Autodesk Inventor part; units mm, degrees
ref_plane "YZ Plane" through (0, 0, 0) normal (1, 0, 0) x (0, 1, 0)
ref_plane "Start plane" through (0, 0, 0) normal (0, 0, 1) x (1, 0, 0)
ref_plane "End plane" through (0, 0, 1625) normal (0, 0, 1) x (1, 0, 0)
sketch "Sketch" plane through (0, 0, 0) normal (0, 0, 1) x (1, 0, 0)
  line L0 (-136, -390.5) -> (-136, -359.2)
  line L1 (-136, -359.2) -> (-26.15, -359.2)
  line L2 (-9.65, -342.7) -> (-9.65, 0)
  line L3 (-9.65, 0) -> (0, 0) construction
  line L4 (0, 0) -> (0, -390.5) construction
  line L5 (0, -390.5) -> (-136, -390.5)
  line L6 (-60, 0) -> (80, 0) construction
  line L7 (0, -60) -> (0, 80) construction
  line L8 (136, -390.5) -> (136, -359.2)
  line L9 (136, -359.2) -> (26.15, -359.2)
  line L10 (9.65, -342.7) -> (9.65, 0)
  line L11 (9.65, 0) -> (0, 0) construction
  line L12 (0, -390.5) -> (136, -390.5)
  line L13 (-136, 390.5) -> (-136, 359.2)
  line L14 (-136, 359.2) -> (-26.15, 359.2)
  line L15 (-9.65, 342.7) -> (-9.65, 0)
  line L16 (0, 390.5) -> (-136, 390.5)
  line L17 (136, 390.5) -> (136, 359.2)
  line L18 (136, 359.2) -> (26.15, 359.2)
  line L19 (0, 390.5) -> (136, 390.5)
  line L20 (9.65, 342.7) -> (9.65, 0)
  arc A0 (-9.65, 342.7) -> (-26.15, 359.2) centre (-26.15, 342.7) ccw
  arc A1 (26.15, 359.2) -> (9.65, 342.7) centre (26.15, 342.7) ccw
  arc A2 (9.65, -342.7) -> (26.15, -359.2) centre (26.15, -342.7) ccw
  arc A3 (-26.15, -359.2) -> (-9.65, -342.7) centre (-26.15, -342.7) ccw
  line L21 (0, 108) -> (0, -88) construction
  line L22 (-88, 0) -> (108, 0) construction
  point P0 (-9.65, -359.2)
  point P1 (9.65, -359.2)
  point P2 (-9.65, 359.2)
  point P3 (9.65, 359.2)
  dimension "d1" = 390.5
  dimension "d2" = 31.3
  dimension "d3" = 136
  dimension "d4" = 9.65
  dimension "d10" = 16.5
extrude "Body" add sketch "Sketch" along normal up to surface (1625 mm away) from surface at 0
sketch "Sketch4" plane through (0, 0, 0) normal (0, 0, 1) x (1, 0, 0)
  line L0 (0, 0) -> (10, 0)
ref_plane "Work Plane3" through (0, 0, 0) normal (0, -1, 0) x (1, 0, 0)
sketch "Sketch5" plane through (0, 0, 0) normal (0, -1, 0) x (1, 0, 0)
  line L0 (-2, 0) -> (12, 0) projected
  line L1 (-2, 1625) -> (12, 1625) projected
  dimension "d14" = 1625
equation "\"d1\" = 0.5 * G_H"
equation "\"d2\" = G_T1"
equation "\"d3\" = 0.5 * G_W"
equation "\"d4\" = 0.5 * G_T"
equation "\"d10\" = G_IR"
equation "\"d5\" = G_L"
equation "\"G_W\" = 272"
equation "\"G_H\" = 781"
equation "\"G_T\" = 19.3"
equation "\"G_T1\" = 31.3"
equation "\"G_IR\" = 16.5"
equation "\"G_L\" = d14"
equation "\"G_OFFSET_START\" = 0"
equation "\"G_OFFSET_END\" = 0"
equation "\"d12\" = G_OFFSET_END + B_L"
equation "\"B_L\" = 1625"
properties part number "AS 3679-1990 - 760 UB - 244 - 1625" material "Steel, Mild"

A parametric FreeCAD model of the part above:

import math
import FreeCAD as App
import Part
import Sketcher
from FreeCAD import Vector

doc = App.newDocument("Part")
body = doc.addObject("PartDesign::Body", "Body")

sketch1 = doc.addObject("Sketcher::SketchObject", "Sketch")
body.addObject(sketch1)
sketch1.AttachmentSupport = (doc.XY_Plane, [""])
sketch1.MapMode = "FlatFace"
sketch1.addGeometry(Part.LineSegment(Vector(-136, -359, 0), Vector(-136, -390, 0)), False)
sketch1.addGeometry(Part.LineSegment(Vector(-136, -390, 0), Vector(136, -390, 0)), False)
sketch1.addGeometry(Part.LineSegment(Vector(136, -390, 0), Vector(136, -359, 0)), False)
sketch1.addGeometry(Part.LineSegment(Vector(136, -359, 0), Vector(26, -359, 0)), False)
sketch1.addGeometry(Part.ArcOfCircle(Part.Circle(Vector(26, -343, 0), Vector(0, 0, 1), 16), math.radians(180), math.radians(270)), False)
sketch1.addGeometry(Part.LineSegment(Vector(10, -343, 0), Vector(10, 343, 0)), False)
sketch1.addGeometry(Part.ArcOfCircle(Part.Circle(Vector(26, 343, 0), Vector(0, 0, 1), 16), math.radians(90), math.radians(180)), False)
sketch1.addGeometry(Part.LineSegment(Vector(26, 359, 0), Vector(136, 359, 0)), False)
sketch1.addGeometry(Part.LineSegment(Vector(136, 359, 0), Vector(136, 390, 0)), False)
sketch1.addGeometry(Part.LineSegment(Vector(136, 390, 0), Vector(-136, 390, 0)), False)
sketch1.addGeometry(Part.LineSegment(Vector(-136, 390, 0), Vector(-136, 359, 0)), False)
sketch1.addGeometry(Part.LineSegment(Vector(-136, 359, 0), Vector(-26, 359, 0)), False)
sketch1.addGeometry(Part.ArcOfCircle(Part.Circle(Vector(-26, 343, 0), Vector(0, 0, 1), 16), math.radians(0), math.radians(90)), False)
sketch1.addGeometry(Part.LineSegment(Vector(-10, 343, 0), Vector(-10, -343, 0)), False)
sketch1.addGeometry(Part.ArcOfCircle(Part.Circle(Vector(-26, -343, 0), Vector(0, 0, 1), 16), math.radians(-90), math.radians(0)), False)
sketch1.addGeometry(Part.LineSegment(Vector(-26, -359, 0), Vector(-136, -359, 0)), False)
sketch1.addConstraint(Sketcher.Constraint("Coincident", 0, 2, 1, 1))
sketch1.addConstraint(Sketcher.Constraint("Coincident", 1, 2, 2, 1))
sketch1.addConstraint(Sketcher.Constraint("Coincident", 2, 2, 3, 1))
sketch1.addConstraint(Sketcher.Constraint("Tangent", 3, 2, 4, 2))
sketch1.addConstraint(Sketcher.Constraint("Tangent", 4, 1, 5, 1))
sketch1.addConstraint(Sketcher.Constraint("Tangent", 5, 2, 6, 2))
sketch1.addConstraint(Sketcher.Constraint("Tangent", 6, 1, 7, 1))
sketch1.addConstraint(Sketcher.Constraint("Coincident", 7, 2, 8, 1))
sketch1.addConstraint(Sketcher.Constraint("Coincident", 8, 2, 9, 1))
sketch1.addConstraint(Sketcher.Constraint("Coincident", 9, 2, 10, 1))
sketch1.addConstraint(Sketcher.Constraint("Coincident", 10, 2, 11, 1))
sketch1.addConstraint(Sketcher.Constraint("Tangent", 11, 2, 12, 2))
sketch1.addConstraint(Sketcher.Constraint("Tangent", 12, 1, 13, 1))
sketch1.addConstraint(Sketcher.Constraint("Tangent", 13, 2, 14, 2))
sketch1.addConstraint(Sketcher.Constraint("Tangent", 14, 1, 15, 1))
sketch1.addConstraint(Sketcher.Constraint("Coincident", 15, 2, 0, 1))
sketch1.addConstraint(Sketcher.Constraint("Vertical", 0))
sketch1.addConstraint(Sketcher.Constraint("Horizontal", 1))
sketch1.addConstraint(Sketcher.Constraint("Vertical", 2))
sketch1.addConstraint(Sketcher.Constraint("Horizontal", 3))
sketch1.addConstraint(Sketcher.Constraint("Vertical", 5))
sketch1.addConstraint(Sketcher.Constraint("Horizontal", 7))
sketch1.addConstraint(Sketcher.Constraint("Vertical", 8))
sketch1.addConstraint(Sketcher.Constraint("Horizontal", 9))
sketch1.addConstraint(Sketcher.Constraint("Vertical", 10))
sketch1.addConstraint(Sketcher.Constraint("Horizontal", 11))
sketch1.addConstraint(Sketcher.Constraint("Vertical", 13))
sketch1.addConstraint(Sketcher.Constraint("Horizontal", 15))
sketch1.addConstraint(Sketcher.Constraint("Equal", 4, 6))
sketch1.addConstraint(Sketcher.Constraint("Equal", 6, 12))
sketch1.addConstraint(Sketcher.Constraint("Equal", 12, 14))
sketch1.addConstraint(Sketcher.Constraint("Symmetric", 4, 3, 12, 3, -1, 1))
sketch1.addConstraint(Sketcher.Constraint("Symmetric", 0, 2, 8, 2, -1, 1))
sketch1.addConstraint(Sketcher.Constraint("Symmetric", 7, 2, 10, 2, -2))
sketch1.addConstraint(Sketcher.Constraint("Symmetric", 2, 2, 15, 2, -2))
sketch1.addConstraint(Sketcher.Constraint("Radius", 4, 16.5))
sketch1.addConstraint(Sketcher.Constraint("DistanceY", 0, 2, 0, 1, 31.3))
sketch1.addConstraint(Sketcher.Constraint("DistanceX", 0, 2, -1, 1, 136.0))
sketch1.addConstraint(Sketcher.Constraint("DistanceY", 0, 2, -1, 1, 390.5))
sketch1.addConstraint(Sketcher.Constraint("DistanceX", -1, 1, 4, 1, 9.65))
pad1 = doc.addObject("PartDesign::Pad", "Pad")
body.addObject(pad1)
pad1.Profile = sketch1
pad1.Length = 1625

doc.recompute()
